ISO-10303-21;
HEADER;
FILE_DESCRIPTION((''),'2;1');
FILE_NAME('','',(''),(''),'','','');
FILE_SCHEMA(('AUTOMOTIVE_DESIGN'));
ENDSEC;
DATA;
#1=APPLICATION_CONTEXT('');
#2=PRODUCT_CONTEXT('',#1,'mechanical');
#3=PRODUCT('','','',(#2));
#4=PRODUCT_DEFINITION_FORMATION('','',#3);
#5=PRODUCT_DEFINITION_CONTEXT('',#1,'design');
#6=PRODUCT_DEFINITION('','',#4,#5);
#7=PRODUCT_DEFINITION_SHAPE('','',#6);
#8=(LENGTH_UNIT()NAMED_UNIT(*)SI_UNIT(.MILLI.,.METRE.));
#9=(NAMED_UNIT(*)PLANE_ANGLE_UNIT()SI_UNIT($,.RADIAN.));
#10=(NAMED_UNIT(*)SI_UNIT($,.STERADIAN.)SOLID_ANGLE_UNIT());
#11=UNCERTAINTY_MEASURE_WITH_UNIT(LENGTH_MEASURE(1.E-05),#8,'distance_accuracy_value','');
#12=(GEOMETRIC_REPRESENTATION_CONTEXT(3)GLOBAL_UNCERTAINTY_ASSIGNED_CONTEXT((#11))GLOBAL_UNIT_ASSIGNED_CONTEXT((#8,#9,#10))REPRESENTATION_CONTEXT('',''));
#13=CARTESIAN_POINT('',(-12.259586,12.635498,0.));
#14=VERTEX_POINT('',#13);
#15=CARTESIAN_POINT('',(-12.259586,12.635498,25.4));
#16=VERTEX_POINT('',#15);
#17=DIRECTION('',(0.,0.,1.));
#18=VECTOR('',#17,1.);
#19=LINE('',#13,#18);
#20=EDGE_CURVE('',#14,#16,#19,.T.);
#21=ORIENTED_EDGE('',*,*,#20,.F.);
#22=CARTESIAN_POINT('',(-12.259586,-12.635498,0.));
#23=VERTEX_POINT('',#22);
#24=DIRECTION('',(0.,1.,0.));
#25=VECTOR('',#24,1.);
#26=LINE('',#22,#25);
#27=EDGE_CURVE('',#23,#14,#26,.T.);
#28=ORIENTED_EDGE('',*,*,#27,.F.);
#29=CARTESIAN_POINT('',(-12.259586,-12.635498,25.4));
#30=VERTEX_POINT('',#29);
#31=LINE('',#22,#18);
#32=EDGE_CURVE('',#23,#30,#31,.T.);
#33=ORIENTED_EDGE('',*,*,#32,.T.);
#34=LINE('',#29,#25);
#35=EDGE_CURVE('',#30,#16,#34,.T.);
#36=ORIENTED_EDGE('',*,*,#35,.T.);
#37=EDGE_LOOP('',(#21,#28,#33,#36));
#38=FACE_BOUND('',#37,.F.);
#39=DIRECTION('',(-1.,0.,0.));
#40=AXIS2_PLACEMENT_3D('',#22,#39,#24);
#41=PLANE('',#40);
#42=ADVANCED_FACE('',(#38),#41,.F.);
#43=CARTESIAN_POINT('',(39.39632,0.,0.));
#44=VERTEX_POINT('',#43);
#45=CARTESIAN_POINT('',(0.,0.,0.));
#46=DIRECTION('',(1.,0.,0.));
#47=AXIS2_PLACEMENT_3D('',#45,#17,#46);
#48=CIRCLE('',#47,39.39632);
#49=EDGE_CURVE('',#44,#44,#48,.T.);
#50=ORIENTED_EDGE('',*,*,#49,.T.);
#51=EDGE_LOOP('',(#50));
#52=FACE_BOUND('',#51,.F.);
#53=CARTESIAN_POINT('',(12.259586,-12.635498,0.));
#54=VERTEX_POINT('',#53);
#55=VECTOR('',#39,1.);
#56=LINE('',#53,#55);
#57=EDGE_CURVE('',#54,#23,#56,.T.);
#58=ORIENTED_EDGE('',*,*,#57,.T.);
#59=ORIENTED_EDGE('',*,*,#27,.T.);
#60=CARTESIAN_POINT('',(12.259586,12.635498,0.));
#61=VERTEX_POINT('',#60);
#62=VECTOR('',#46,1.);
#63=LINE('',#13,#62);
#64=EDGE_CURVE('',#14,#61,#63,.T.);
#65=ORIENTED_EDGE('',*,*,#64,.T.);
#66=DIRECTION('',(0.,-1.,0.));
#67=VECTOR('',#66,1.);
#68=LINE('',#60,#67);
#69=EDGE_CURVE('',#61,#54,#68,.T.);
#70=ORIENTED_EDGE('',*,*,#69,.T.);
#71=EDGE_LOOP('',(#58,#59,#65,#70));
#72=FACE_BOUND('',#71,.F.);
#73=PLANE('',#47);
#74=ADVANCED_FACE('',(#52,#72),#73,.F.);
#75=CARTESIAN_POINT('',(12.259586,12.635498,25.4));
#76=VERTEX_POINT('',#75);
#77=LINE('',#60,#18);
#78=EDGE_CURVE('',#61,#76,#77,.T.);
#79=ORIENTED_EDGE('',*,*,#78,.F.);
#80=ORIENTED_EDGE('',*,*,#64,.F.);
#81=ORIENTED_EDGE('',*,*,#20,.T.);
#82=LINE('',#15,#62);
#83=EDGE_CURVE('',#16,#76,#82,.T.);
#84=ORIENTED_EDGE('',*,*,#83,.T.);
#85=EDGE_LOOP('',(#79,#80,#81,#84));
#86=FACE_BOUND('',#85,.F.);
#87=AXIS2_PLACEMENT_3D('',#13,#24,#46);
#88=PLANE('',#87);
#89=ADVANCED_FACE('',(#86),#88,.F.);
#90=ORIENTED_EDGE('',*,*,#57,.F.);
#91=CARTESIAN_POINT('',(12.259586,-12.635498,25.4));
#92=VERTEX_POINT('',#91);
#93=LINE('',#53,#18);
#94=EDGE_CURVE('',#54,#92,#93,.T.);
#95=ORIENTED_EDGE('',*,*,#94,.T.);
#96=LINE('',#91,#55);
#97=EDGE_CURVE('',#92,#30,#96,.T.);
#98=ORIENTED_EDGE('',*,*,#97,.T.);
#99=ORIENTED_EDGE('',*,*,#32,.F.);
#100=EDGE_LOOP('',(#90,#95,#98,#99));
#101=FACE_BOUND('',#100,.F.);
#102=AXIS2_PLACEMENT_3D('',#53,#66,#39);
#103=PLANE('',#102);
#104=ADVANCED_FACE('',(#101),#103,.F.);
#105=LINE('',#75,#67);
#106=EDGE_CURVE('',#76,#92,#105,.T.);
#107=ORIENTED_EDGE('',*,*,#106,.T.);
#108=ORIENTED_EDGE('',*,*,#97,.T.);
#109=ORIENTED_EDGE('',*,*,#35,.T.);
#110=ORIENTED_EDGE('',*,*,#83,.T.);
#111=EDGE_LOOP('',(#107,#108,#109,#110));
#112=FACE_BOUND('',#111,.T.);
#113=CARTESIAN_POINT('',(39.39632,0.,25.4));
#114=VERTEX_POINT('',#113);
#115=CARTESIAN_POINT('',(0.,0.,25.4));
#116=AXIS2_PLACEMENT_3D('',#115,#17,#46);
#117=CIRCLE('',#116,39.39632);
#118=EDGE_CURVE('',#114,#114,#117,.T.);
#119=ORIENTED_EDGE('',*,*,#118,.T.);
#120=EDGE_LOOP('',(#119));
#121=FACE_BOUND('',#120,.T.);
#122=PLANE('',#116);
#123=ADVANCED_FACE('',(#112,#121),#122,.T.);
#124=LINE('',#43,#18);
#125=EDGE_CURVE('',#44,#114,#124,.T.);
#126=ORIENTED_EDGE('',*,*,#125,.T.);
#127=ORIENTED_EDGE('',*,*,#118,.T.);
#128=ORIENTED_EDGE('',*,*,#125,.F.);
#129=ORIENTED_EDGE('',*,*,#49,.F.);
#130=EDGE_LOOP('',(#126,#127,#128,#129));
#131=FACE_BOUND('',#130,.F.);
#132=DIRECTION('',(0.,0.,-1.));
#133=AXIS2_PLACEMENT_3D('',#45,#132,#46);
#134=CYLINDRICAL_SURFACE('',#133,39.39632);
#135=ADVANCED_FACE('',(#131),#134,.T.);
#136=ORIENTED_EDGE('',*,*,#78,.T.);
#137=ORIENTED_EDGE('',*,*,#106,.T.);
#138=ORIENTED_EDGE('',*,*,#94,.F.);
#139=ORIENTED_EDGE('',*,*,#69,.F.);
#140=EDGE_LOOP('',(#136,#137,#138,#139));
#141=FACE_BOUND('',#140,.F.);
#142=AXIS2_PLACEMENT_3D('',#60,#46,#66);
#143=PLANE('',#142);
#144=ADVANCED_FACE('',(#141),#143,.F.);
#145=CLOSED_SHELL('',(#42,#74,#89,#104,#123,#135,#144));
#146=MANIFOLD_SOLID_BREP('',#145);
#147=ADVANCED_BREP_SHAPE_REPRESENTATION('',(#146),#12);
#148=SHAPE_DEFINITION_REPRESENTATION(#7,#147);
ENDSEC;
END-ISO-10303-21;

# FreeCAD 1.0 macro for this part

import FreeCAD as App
import Part
import Sketcher
from FreeCAD import Vector
Q = App.Units.Quantity


def add_polygon(sketch, points):
    """Adds a closed chain of lines whose ends are joined by coincident constraints."""
    first, n = sketch.GeometryCount, len(points)
    for a, b in zip(points, points[1:] + points[:1]):
        sketch.addGeometry(Part.LineSegment(App.Vector(*a, 0), App.Vector(*b, 0)), False)
    for i in range(n):
        sketch.addConstraint(Sketcher.Constraint("Coincident", first + i, 2, first + (i + 1) % n, 1))

doc = App.newDocument("Part")
body = doc.addObject("PartDesign::Body", "Body")

# Sketch on XY plane
sketch1 = body.newObject("Sketcher::SketchObject", "Sketch")
sketch1.AttachmentSupport = (doc.getObject("XY_Plane"), [""])
sketch1.MapMode = "FlatFace"
sketch1.addGeometry(Part.Circle(Vector(0, 0, 0), Vector(0, 0, 1), 39.39632), False)  # 0
add_polygon(sketch1, [(12.259586, -12.635498), (-12.259586, -12.635498), (-12.259586, 12.635498), (12.259586, 12.635498)])  # lines 1-4
sketch1.addConstraint(Sketcher.Constraint("Horizontal", 1))
sketch1.addConstraint(Sketcher.Constraint("Vertical", 2))
sketch1.addConstraint(Sketcher.Constraint("Horizontal", 3))
sketch1.addConstraint(Sketcher.Constraint("Vertical", 4))
sketch1.addConstraint(Sketcher.Constraint("Coincident", 0, 3, -1, 1))
sketch1.addConstraint(Sketcher.Constraint("Symmetric", 1, 2, 3, 2, -1, 1))
sketch1.addConstraint(Sketcher.Constraint("Diameter", 0, Q("78.79264 mm")))
sketch1.addConstraint(Sketcher.Constraint("DistanceX", 1, 2, 1, 1, Q("24.519172 mm")))
sketch1.addConstraint(Sketcher.Constraint("DistanceY", 2, 1, 2, 2, Q("25.270996 mm")))
pad1 = body.newObject("PartDesign::Pad", "Pad")
pad1.Profile = sketch1
pad1.Length = Q("1 in")

doc.recompute()
